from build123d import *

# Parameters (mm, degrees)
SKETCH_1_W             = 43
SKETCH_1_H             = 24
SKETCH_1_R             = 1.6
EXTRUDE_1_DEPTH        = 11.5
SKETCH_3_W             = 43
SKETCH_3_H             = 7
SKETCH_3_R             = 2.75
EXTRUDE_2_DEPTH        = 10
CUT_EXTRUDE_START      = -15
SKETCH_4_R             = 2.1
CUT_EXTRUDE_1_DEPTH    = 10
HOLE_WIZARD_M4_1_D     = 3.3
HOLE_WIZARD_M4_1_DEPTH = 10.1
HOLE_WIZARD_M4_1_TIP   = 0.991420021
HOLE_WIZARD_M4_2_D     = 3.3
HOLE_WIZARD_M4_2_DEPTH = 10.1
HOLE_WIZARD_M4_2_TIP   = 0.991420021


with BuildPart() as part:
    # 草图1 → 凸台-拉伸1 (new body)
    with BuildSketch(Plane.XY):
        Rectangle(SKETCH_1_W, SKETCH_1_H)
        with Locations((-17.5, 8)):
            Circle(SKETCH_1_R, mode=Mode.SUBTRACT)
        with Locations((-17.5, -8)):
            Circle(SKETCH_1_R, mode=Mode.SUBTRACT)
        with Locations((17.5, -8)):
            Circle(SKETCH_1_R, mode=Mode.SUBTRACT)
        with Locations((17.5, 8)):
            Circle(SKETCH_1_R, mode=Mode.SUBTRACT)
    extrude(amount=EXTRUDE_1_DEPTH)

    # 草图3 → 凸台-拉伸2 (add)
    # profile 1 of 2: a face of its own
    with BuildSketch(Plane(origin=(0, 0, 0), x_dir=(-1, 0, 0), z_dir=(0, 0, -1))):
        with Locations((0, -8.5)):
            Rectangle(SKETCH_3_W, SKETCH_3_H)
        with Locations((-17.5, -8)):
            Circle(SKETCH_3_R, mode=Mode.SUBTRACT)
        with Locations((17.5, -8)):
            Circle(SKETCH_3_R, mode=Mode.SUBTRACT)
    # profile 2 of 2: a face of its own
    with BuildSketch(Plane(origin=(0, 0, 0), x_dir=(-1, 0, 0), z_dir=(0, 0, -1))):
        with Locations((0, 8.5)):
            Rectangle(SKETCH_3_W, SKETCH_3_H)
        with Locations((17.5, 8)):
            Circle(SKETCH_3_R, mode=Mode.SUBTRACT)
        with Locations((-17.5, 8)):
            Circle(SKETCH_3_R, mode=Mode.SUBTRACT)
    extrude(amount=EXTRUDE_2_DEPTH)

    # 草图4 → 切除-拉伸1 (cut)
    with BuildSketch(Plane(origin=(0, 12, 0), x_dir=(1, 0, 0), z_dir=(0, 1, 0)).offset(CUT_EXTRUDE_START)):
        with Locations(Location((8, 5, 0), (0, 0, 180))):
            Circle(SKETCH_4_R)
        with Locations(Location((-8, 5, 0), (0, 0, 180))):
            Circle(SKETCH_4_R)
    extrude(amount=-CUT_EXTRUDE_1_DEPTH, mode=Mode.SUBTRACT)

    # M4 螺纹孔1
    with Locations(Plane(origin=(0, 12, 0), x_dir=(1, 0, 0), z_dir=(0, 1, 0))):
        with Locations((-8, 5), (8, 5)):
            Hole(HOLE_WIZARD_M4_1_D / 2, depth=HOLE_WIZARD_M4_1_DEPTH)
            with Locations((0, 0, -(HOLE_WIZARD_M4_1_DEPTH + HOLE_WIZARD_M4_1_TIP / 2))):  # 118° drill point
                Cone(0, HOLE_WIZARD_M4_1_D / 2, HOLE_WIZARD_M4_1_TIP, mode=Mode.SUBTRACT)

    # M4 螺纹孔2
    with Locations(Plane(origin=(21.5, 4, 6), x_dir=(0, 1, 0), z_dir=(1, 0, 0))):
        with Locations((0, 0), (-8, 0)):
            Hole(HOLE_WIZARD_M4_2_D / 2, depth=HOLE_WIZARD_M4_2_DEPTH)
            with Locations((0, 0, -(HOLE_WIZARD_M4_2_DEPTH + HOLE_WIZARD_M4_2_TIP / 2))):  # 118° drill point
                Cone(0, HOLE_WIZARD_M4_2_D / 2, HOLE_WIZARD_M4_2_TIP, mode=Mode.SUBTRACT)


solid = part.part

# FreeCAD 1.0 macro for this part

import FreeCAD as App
import Part
import Sketcher

V = App.Vector
Q = App.Units.Quantity

doc = App.newDocument("Part")
params = doc.addObject("Spreadsheet::Sheet", "Params")
for row, (alias, value) in enumerate([
    ("sketch1_diameter", "3.2 mm"),
    ("sketch1_width", "43 mm"),
    ("sketch1_height", "24 mm"),
    ("pad1_length", "11.5 mm"),
    ("sketch2_diameter", "5.5 mm"),
    ("sketch2_width", "43 mm"),
    ("sketch2_height", "7 mm"),
    ("pad2_length", "10 mm"),
    ("sketch3_diameter", "4.2 mm"),
    ("pocket1_length", "10 mm"),
    ("sketch4_diameter", "3.3 mm"),
    ("hole_diameter", "3.3 mm"),
    ("hole_depth", "10.1 mm"),
    ("sketch5_diameter", "3.3 mm"),
    ("hole2_diameter", "3.3 mm"),
    ("hole2_depth", "10.1 mm"),
], start=1):
    params.set(f"A{row}", alias)
    params.set(f"B{row}", "=" + value)
    params.setAlias(f"B{row}", alias)

body = doc.addObject("PartDesign::Body", "Body")

sketch1 = body.newObject("Sketcher::SketchObject", "Sketch")
sketch1.AttachmentSupport = (doc.getObject("XY_Plane"), [""])
sketch1.MapMode = "FlatFace"
sketch1.addGeometry(Part.LineSegment(V(-21.5, 12, 0), V(-21.5, -12, 0)), False)
sketch1.addGeometry(Part.LineSegment(V(-21.5, -12, 0), V(21.5, -12, 0)), False)
sketch1.addGeometry(Part.LineSegment(V(21.5, -12, 0), V(21.5, 12, 0)), False)
sketch1.addGeometry(Part.LineSegment(V(21.5, 12, 0), V(-21.5, 12, 0)), False)
sketch1.addGeometry(Part.Circle(V(-17.5, -8, 0), V(0, 0, 1), 1.6), False)
sketch1.addGeometry(Part.Circle(V(17.5, -8, 0), V(0, 0, 1), 1.6), False)
sketch1.addGeometry(Part.Circle(V(-17.5, 8, 0), V(0, 0, 1), 1.6), False)
sketch1.addGeometry(Part.Circle(V(17.5, 8, 0), V(0, 0, 1), 1.6), False)
sketch1.addConstraint(Sketcher.Constraint("Coincident", 0, 2, 1, 1))
sketch1.addConstraint(Sketcher.Constraint("Coincident", 1, 2, 2, 1))
sketch1.addConstraint(Sketcher.Constraint("Coincident", 2, 2, 3, 1))
sketch1.addConstraint(Sketcher.Constraint("Coincident", 3, 2, 0, 1))
sketch1.addConstraint(Sketcher.Constraint("Vertical", 0))
sketch1.addConstraint(Sketcher.Constraint("Horizontal", 1))
sketch1.addConstraint(Sketcher.Constraint("Vertical", 2))
sketch1.addConstraint(Sketcher.Constraint("Horizontal", 3))
sketch1.addConstraint(Sketcher.Constraint("Equal", 4, 5))
sketch1.addConstraint(Sketcher.Constraint("Equal", 5, 6))
sketch1.addConstraint(Sketcher.Constraint("Equal", 6, 7))
sketch1.addConstraint(Sketcher.Constraint("Symmetric", 5, 3, 6, 3, -1, 1))
sketch1.addConstraint(Sketcher.Constraint("Symmetric", 4, 3, 7, 3, -1, 1))
sketch1.addConstraint(Sketcher.Constraint("Symmetric", 0, 2, 2, 2, -1, 1))
sketch1.addConstraint(Sketcher.Constraint("Symmetric", 4, 3, 5, 3, -2))
sketch1.addConstraint(Sketcher.Constraint("Diameter", 4, Q("3.2 mm")))
sketch1.addConstraint(Sketcher.Constraint("DistanceX", 1, 1, 1, 2, Q("43 mm")))
sketch1.addConstraint(Sketcher.Constraint("DistanceY", 0, 2, 0, 1, Q("24 mm")))
sketch1.addConstraint(Sketcher.Constraint("DistanceY", 4, 3, -1, 1, Q("8 mm")))
sketch1.addConstraint(Sketcher.Constraint("DistanceX", 4, 3, 5, 3, Q("35 mm")))
sketch1.setExpression("Constraints[15]", "Params.sketch1_diameter")
sketch1.setExpression("Constraints[16]", "Params.sketch1_width")
sketch1.setExpression("Constraints[17]", "Params.sketch1_height")
pad1 = body.newObject("PartDesign::Pad", "Pad")
pad1.Profile = sketch1
pad1.setExpression("Length", "Params.pad1_length")

sketch2 = body.newObject("Sketcher::SketchObject", "Sketch001")
sketch2.AttachmentSupport = (doc.getObject("XY_Plane"), [""])
sketch2.MapMode = "FlatFace"
sketch2.addGeometry(Part.LineSegment(V(21.5, -5, 0), V(21.5, -12, 0)), False)
sketch2.addGeometry(Part.LineSegment(V(21.5, -12, 0), V(-21.5, -12, 0)), False)
sketch2.addGeometry(Part.LineSegment(V(-21.5, -12, 0), V(-21.5, -5, 0)), False)
sketch2.addGeometry(Part.LineSegment(V(-21.5, -5, 0), V(21.5, -5, 0)), False)
sketch2.addGeometry(Part.Circle(V(17.5, -8, 0), V(0, 0, 1), 2.75), False)
sketch2.addGeometry(Part.Circle(V(-17.5, -8, 0), V(0, 0, 1), 2.75), False)
sketch2.addGeometry(Part.LineSegment(V(21.5, 12, 0), V(21.5, 5, 0)), False)
sketch2.addGeometry(Part.LineSegment(V(21.5, 5, 0), V(-21.5, 5, 0)), False)
sketch2.addGeometry(Part.LineSegment(V(-21.5, 5, 0), V(-21.5, 12, 0)), False)
sketch2.addGeometry(Part.LineSegment(V(-21.5, 12, 0), V(21.5, 12, 0)), False)
sketch2.addGeometry(Part.Circle(V(17.5, 8, 0), V(0, 0, 1), 2.75), False)
sketch2.addGeometry(Part.Circle(V(-17.5, 8, 0), V(0, 0, 1), 2.75), False)
sketch2.addConstraint(Sketcher.Constraint("Coincident", 0, 2, 1, 1))
sketch2.addConstraint(Sketcher.Constraint("Coincident", 1, 2, 2, 1))
sketch2.addConstraint(Sketcher.Constraint("Coincident", 2, 2, 3, 1))
sketch2.addConstraint(Sketcher.Constraint("Coincident", 3, 2, 0, 1))
sketch2.addConstraint(Sketcher.Constraint("Coincident", 6, 2, 7, 1))
sketch2.addConstraint(Sketcher.Constraint("Coincident", 7, 2, 8, 1))
sketch2.addConstraint(Sketcher.Constraint("Coincident", 8, 2, 9, 1))
sketch2.addConstraint(Sketcher.Constraint("Coincident", 9, 2, 6, 1))
sketch2.addConstraint(Sketcher.Constraint("Vertical", 0))
sketch2.addConstraint(Sketcher.Constraint("Horizontal", 1))
sketch2.addConstraint(Sketcher.Constraint("Vertical", 2))
sketch2.addConstraint(Sketcher.Constraint("Horizontal", 3))
sketch2.addConstraint(Sketcher.Constraint("Vertical", 6))
sketch2.addConstraint(Sketcher.Constraint("Horizontal", 7))
sketch2.addConstraint(Sketcher.Constraint("Vertical", 8))
sketch2.addConstraint(Sketcher.Constraint("Horizontal", 9))
sketch2.addConstraint(Sketcher.Constraint("Equal", 4, 5))
sketch2.addConstraint(Sketcher.Constraint("Equal", 5, 10))
sketch2.addConstraint(Sketcher.Constraint("Equal", 10, 11))
sketch2.addConstraint(Sketcher.Constraint("Symmetric", 5, 3, 10, 3, -1, 1))
sketch2.addConstraint(Sketcher.Constraint("Symmetric", 4, 3, 11, 3, -1, 1))
sketch2.addConstraint(Sketcher.Constraint("Symmetric", 2, 2, 6, 2, -1, 1))
sketch2.addConstraint(Sketcher.Constraint("Symmetric", 0, 2, 8, 2, -1, 1))
sketch2.addConstraint(Sketcher.Constraint("Symmetric", 4, 3, 5, 3, -2))
sketch2.addConstraint(Sketcher.Constraint("Vertical", 3, 2, 6, 2))
sketch2.addConstraint(Sketcher.Constraint("Diameter", 4, Q("5.5 mm")))
sketch2.addConstraint(Sketcher.Constraint("DistanceX", 1, 2, 1, 1, Q("43 mm")))
sketch2.addConstraint(Sketcher.Constraint("DistanceY", 0, 2, 0, 1, Q("7 mm")))
sketch2.addConstraint(Sketcher.Constraint("DistanceY", 4, 3, -1, 1, Q("8 mm")))
sketch2.addConstraint(Sketcher.Constraint("DistanceY", 0, 2, -1, 1, Q("12 mm")))
sketch2.addConstraint(Sketcher.Constraint("DistanceX", 5, 3, 4, 3, Q("35 mm")))
sketch2.setExpression("Constraints[25]", "Params.sketch2_diameter")
sketch2.setExpression("Constraints[26]", "Params.sketch2_width")
sketch2.setExpression("Constraints[27]", "Params.sketch2_height")
pad2 = body.newObject("PartDesign::Pad", "Pad001")
pad2.Profile = sketch2
pad2.setExpression("Length", "Params.pad2_length")
pad2.Reversed = True

sketch3 = body.newObject("Sketcher::SketchObject", "Sketch002")
sketch3.AttachmentSupport = (doc.getObject("XZ_Plane"), [""])
sketch3.MapMode = "FlatFace"
sketch3.AttachmentOffset = App.Placement(V(0, 0, 3), App.Rotation())
sketch3.addGeometry(Part.Circle(V(8, -5, 0), V(0, 0, 1), 2.1), False)
sketch3.addGeometry(Part.Circle(V(-8, -5, 0), V(0, 0, 1), 2.1), False)
sketch3.addConstraint(Sketcher.Constraint("Equal", 0, 1))
sketch3.addConstraint(Sketcher.Constraint("Symmetric", 0, 3, 1, 3, -2))
sketch3.addConstraint(Sketcher.Constraint("Diameter", 0, Q("4.2 mm")))
sketch3.addConstraint(Sketcher.Constraint("DistanceX", -1, 1, 0, 3, Q("8 mm")))
sketch3.addConstraint(Sketcher.Constraint("DistanceY", 0, 3, -1, 1, Q("5 mm")))
sketch3.setExpression("Constraints[2]", "Params.sketch3_diameter")
pocket1 = body.newObject("PartDesign::Pocket", "Pocket")
pocket1.Profile = sketch3
pocket1.setExpression("Length", "Params.pocket1_length")
pocket1.Reversed = True

sketch4 = body.newObject("Sketcher::SketchObject", "Sketch003")
sketch4.AttachmentSupport = (doc.getObject("XZ_Plane"), [""])
sketch4.MapMode = "FlatFace"
sketch4.AttachmentOffset = App.Placement(V(0, 0, -12), App.Rotation())
sketch4.addGeometry(Part.Circle(V(-8, -5, 0), V(0, 0, 1), 1.65), False)
sketch4.addGeometry(Part.Circle(V(8, -5, 0), V(0, 0, 1), 1.65), False)
sketch4.addConstraint(Sketcher.Constraint("Equal", 0, 1))
sketch4.addConstraint(Sketcher.Constraint("Symmetric", 0, 3, 1, 3, -2))
sketch4.addConstraint(Sketcher.Constraint("Diameter", 0, Q("3.3 mm")))
sketch4.addConstraint(Sketcher.Constraint("DistanceX", 0, 3, -1, 1, Q("8 mm")))
sketch4.addConstraint(Sketcher.Constraint("DistanceY", 0, 3, -1, 1, Q("5 mm")))
sketch4.setExpression("Constraints[2]", "Params.sketch4_diameter")
doc.recompute()
hole = body.newObject("PartDesign::Hole", "Hole")
hole.Profile = sketch4
hole.ThreadType = "None"
hole.setExpression("Diameter", "Params.hole_diameter")
hole.DepthType = "Dimension"
hole.setExpression("Depth", "Params.hole_depth")
hole.DrillPoint = "Angled"
hole.DrillPointAngle = 118
hole.Reversed = True

sketch5 = body.newObject("Sketcher::SketchObject", "Sketch004")
sketch5.AttachmentSupport = (doc.getObject("YZ_Plane"), [""])
sketch5.MapMode = "FlatFace"
sketch5.AttachmentOffset = App.Placement(V(0, 0, 21.5), App.Rotation())
sketch5.addGeometry(Part.Circle(V(4, 6, 0), V(0, 0, 1), 1.65), False)
sketch5.addGeometry(Part.Circle(V(-4, 6, 0), V(0, 0, 1), 1.65), False)
sketch5.addConstraint(Sketcher.Constraint("Equal", 0, 1))
sketch5.addConstraint(Sketcher.Constraint("Symmetric", 0, 3, 1, 3, -2))
sketch5.addConstraint(Sketcher.Constraint("Diameter", 0, Q("3.3 mm")))
sketch5.addConstraint(Sketcher.Constraint("DistanceX", -1, 1, 0, 3, Q("4 mm")))
sketch5.addConstraint(Sketcher.Constraint("DistanceY", -1, 1, 0, 3, Q("6 mm")))
sketch5.setExpression("Constraints[2]", "Params.sketch5_diameter")
doc.recompute()
hole2 = body.newObject("PartDesign::Hole", "Hole001")
hole2.Profile = sketch5
hole2.ThreadType = "None"
hole2.setExpression("Diameter", "Params.hole2_diameter")
hole2.DepthType = "Dimension"
hole2.setExpression("Depth", "Params.hole2_depth")
hole2.DrillPoint = "Angled"
hole2.DrillPointAngle = 118

doc.recompute()
